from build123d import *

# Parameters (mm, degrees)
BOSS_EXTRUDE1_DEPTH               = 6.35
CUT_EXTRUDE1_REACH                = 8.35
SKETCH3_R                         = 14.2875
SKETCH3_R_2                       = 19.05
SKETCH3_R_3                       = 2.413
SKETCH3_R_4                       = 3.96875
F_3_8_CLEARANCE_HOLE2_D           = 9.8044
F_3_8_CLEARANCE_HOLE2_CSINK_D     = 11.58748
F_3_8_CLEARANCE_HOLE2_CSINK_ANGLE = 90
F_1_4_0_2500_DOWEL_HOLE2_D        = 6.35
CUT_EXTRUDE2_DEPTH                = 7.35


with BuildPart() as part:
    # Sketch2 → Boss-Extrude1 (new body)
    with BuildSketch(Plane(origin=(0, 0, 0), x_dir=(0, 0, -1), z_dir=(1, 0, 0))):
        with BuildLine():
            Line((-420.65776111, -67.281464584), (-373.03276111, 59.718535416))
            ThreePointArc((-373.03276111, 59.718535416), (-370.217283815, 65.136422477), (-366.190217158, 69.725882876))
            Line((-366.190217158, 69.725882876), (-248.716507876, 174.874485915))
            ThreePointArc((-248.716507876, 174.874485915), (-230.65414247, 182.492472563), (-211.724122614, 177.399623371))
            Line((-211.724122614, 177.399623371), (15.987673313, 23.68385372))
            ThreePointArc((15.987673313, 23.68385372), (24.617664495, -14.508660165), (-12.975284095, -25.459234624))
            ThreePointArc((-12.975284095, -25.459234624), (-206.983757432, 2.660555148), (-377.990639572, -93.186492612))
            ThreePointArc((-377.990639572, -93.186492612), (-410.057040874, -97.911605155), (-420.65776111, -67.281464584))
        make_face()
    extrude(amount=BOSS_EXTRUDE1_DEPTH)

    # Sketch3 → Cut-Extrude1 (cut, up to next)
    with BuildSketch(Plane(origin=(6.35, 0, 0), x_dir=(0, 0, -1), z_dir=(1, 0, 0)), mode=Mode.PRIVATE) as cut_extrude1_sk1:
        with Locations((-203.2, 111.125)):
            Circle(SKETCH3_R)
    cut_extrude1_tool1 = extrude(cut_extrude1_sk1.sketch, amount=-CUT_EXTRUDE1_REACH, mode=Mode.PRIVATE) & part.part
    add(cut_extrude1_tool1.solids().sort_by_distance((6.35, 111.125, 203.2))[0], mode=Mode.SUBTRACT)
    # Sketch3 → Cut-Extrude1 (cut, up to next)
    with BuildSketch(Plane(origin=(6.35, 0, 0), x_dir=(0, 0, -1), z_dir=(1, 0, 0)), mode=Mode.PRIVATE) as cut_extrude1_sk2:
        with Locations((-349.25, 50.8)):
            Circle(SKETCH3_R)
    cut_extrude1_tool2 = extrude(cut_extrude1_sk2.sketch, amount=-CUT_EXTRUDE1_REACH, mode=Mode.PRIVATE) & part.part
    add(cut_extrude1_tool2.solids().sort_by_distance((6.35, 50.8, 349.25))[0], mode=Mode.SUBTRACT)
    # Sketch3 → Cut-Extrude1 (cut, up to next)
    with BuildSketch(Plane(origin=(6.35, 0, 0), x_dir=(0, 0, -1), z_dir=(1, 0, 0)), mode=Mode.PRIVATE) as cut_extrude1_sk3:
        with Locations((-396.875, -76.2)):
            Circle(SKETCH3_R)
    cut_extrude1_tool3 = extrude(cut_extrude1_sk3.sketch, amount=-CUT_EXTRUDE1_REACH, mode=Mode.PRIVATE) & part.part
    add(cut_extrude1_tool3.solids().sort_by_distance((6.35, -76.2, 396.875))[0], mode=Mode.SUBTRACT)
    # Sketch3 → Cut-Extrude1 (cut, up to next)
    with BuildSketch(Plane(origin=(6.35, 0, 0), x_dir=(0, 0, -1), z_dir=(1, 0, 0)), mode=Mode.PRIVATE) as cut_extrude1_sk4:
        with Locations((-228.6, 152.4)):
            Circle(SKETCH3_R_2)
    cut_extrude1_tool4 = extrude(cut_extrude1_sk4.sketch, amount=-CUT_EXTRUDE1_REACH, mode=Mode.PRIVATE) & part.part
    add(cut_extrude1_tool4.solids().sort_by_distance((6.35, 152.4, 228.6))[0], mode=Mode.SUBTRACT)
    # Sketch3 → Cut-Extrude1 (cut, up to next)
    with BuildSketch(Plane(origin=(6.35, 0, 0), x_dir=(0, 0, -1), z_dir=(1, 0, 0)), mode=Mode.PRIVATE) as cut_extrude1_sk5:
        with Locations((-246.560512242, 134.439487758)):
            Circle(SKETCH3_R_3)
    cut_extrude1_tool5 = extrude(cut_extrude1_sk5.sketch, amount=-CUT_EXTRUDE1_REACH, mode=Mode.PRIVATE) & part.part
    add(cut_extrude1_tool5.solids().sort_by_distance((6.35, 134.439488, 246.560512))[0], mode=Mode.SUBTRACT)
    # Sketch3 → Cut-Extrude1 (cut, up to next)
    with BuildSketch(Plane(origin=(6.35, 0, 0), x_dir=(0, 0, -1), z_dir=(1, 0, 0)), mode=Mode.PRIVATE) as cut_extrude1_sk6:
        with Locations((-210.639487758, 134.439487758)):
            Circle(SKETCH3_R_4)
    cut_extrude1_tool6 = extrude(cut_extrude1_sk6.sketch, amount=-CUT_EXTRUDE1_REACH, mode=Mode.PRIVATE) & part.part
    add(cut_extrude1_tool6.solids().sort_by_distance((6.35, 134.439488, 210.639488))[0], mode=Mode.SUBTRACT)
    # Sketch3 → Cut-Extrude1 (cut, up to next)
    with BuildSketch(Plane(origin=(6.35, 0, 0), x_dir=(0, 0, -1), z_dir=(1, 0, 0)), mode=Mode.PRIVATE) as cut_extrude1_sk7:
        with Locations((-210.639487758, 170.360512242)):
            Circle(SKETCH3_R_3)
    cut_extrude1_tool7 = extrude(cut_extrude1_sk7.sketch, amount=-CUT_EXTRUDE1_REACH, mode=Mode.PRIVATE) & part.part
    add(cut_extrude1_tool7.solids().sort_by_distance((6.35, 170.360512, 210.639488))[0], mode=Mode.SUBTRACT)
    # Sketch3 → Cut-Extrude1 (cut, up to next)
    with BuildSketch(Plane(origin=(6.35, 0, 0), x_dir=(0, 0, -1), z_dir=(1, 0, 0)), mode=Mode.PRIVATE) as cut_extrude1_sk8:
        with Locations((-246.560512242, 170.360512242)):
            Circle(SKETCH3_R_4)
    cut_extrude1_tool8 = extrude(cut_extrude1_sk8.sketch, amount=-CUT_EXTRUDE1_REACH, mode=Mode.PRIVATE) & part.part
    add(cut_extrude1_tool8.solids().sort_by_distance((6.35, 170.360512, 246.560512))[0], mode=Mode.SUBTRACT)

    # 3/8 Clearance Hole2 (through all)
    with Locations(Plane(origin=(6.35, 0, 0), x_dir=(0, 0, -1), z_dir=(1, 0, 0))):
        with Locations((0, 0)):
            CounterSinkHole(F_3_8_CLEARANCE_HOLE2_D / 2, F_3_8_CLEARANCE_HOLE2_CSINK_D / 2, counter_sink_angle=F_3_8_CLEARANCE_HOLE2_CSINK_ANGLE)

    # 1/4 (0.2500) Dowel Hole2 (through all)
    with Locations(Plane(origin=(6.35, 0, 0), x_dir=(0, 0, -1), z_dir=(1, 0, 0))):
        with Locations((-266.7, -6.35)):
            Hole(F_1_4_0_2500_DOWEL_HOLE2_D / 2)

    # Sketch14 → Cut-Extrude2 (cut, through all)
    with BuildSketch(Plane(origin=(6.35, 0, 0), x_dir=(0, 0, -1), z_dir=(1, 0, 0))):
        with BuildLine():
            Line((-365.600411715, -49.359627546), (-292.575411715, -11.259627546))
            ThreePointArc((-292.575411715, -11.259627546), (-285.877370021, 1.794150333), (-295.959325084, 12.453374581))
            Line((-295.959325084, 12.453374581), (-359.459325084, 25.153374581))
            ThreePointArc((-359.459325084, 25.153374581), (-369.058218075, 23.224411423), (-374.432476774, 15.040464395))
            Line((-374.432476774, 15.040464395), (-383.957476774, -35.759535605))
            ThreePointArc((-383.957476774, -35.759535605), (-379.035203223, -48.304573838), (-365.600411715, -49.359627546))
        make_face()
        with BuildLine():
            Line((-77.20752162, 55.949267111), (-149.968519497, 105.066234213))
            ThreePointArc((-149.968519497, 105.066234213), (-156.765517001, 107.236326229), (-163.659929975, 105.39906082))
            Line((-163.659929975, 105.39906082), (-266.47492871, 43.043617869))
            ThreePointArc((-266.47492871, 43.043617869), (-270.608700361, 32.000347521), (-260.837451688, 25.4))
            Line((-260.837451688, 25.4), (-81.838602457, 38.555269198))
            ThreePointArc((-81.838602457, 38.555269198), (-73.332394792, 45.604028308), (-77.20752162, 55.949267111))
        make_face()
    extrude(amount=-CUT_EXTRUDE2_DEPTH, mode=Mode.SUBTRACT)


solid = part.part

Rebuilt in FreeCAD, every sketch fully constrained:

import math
import FreeCAD as App
import Part
import Sketcher

V = App.Vector
Q = App.Units.Quantity

doc = App.newDocument("Part")
body = doc.addObject("PartDesign::Body", "Body")

sketch1 = body.newObject("Sketcher::SketchObject", "Sketch")
sketch1.AttachmentSupport = (doc.getObject("YZ_Plane"), [""])
sketch1.MapMode = "FlatFace"
sketch1.addGeometry([
    Part.LineSegment(V(60, 373, 0), V(-67, 421, 0)),
    Part.ArcOfCircle(Part.Circle(V(-76, 397, 0), V(0, 0, 1), 25), math.radians(69), math.radians(228)),
    Part.ArcOfCircle(Part.Circle(V(-297, 151, 0), V(0, 0, 1), 305), math.radians(-27), math.radians(48)),
    Part.ArcOfCircle(Part.Circle(V(0, 0, 0), V(0, 0, 1), 29), math.radians(153), math.radians(326)),
    Part.LineSegment(V(24, -16, 0), V(177, 212, 0)),
    Part.ArcOfCircle(Part.Circle(V(152, 229, 0), V(0, 0, 1), 30), math.radians(-34), math.radians(42)),
    Part.LineSegment(V(175, 249, 0), V(70, 366, 0)),
    Part.ArcOfCircle(Part.Circle(V(51, 349, 0), V(0, 0, 1), 25), math.radians(42), math.radians(69)),
], False)
sketch1.addConstraint([
    Sketcher.Constraint("Tangent", 0, 2, 1, 1),
    Sketcher.Constraint("Tangent", 1, 2, 2, 2),
    Sketcher.Constraint("Tangent", 2, 1, 3, 1),
    Sketcher.Constraint("Tangent", 3, 2, 4, 1),
    Sketcher.Constraint("Tangent", 4, 2, 5, 1),
    Sketcher.Constraint("Tangent", 5, 2, 6, 1),
    Sketcher.Constraint("Tangent", 6, 2, 7, 1),
    Sketcher.Constraint("Tangent", 7, 2, 0, 1),
    Sketcher.Constraint("Coincident", 3, 3, -1, 1),
    Sketcher.Constraint("Equal", 1, 7),
    Sketcher.Constraint("Radius", 1, Q("1 in")),
    Sketcher.Constraint("Radius", 2, Q("12 in")),
    Sketcher.Constraint("DistanceX", 1, 3, -1, 1, Q("3 in")),
    Sketcher.Constraint("DistanceX", -1, 1, 5, 3, Q("6 in")),
    Sketcher.Constraint("DistanceY", -1, 1, 5, 3, Q("9 in")),
    Sketcher.Constraint("DistanceX", -1, 1, 7, 3, Q("2 in")),
    Sketcher.Constraint("Radius", 3, Q("1.125 in")),
    Sketcher.Constraint("Radius", 5, Q("1.1875 in")),
    Sketcher.Constraint("DistanceY", -1, 1, 7, 3, Q("13.75 in")),
    Sketcher.Constraint("DistanceY", -1, 1, 1, 3, Q("15.625 in")),
])
pad1 = body.newObject("PartDesign::Pad", "Pad")
pad1.Profile = sketch1
pad1.Length = Q("0.25 in")

sketch2 = body.newObject("Sketcher::SketchObject", "Sketch001")
sketch2.AttachmentSupport = (doc.getObject("YZ_Plane"), [""])
sketch2.MapMode = "FlatFace"
sketch2.AttachmentOffset = App.Placement(V(0, 0, 0.25 * 25.4), App.Rotation())
sketch2.addGeometry(Part.Circle(V(111, 203, 0), V(0, 0, 1), 14), False)
sketch2.addConstraint([
    Sketcher.Constraint("Diameter", 0, Q("1.125 in")),
    Sketcher.Constraint("DistanceY", -1, 1, 0, 3, Q("8 in")),
    Sketcher.Constraint("DistanceX", -1, 1, 0, 3, Q("4.375 in")),
])
pocket1 = body.newObject("PartDesign::Pocket", "Pocket")
pocket1.Profile = sketch2
pocket1.Type = "UpToFirst"

sketch3 = body.newObject("Sketcher::SketchObject", "Sketch002")
sketch3.AttachmentSupport = (doc.getObject("YZ_Plane"), [""])
sketch3.MapMode = "FlatFace"
sketch3.AttachmentOffset = App.Placement(V(0, 0, 0.25 * 25.4), App.Rotation())
sketch3.addGeometry(Part.Circle(V(51, 349, 0), V(0, 0, 1), 14), False)
sketch3.addConstraint([
    Sketcher.Constraint("Diameter", 0, Q("1.125 in")),
    Sketcher.Constraint("DistanceX", -1, 1, 0, 3, Q("2 in")),
    Sketcher.Constraint("DistanceY", -1, 1, 0, 3, Q("13.75 in")),
])
pocket2 = body.newObject("PartDesign::Pocket", "Pocket001")
pocket2.Profile = sketch3
pocket2.Type = "UpToFirst"

sketch4 = body.newObject("Sketcher::SketchObject", "Sketch003")
sketch4.AttachmentSupport = (doc.getObject("YZ_Plane"), [""])
sketch4.MapMode = "FlatFace"
sketch4.AttachmentOffset = App.Placement(V(0, 0, 0.25 * 25.4), App.Rotation())
sketch4.addGeometry(Part.Circle(V(-76, 397, 0), V(0, 0, 1), 14), False)
sketch4.addConstraint([
    Sketcher.Constraint("Diameter", 0, Q("1.125 in")),
    Sketcher.Constraint("DistanceX", 0, 3, -1, 1, Q("3 in")),
    Sketcher.Constraint("DistanceY", -1, 1, 0, 3, Q("15.625 in")),
])
pocket3 = body.newObject("PartDesign::Pocket", "Pocket002")
pocket3.Profile = sketch4
pocket3.Type = "UpToFirst"

sketch5 = body.newObject("Sketcher::SketchObject", "Sketch004")
sketch5.AttachmentSupport = (doc.getObject("YZ_Plane"), [""])
sketch5.MapMode = "FlatFace"
sketch5.AttachmentOffset = App.Placement(V(0, 0, 0.25 * 25.4), App.Rotation())
sketch5.addGeometry(Part.Circle(V(152, 229, 0), V(0, 0, 1), 19), False)
sketch5.addConstraint([
    Sketcher.Constraint("Diameter", 0, Q("1.5 in")),
    Sketcher.Constraint("DistanceX", -1, 1, 0, 3, Q("6 in")),
    Sketcher.Constraint("DistanceY", -1, 1, 0, 3, Q("9 in")),
])
pocket4 = body.newObject("PartDesign::Pocket", "Pocket003")
pocket4.Profile = sketch5
pocket4.Type = "UpToFirst"

sketch6 = body.newObject("Sketcher::SketchObject", "Sketch005")
sketch6.AttachmentSupport = (doc.getObject("YZ_Plane"), [""])
sketch6.MapMode = "FlatFace"
sketch6.AttachmentOffset = App.Placement(V(0, 0, 0.25 * 25.4), App.Rotation())
sketch6.addGeometry(Part.Circle(V(134.4, 246.6, 0), V(0, 0, 1), 2.4), False)
sketch6.addConstraint([
    Sketcher.Constraint("Diameter", 0, Q("0.19 in")),
    Sketcher.Constraint("DistanceX", -1, 1, 0, 3, 134.439488),
    Sketcher.Constraint("DistanceY", -1, 1, 0, 3, 246.560512),
])
pocket5 = body.newObject("PartDesign::Pocket", "Pocket004")
pocket5.Profile = sketch6
pocket5.Type = "UpToFirst"

sketch7 = body.newObject("Sketcher::SketchObject", "Sketch006")
sketch7.AttachmentSupport = (doc.getObject("YZ_Plane"), [""])
sketch7.MapMode = "FlatFace"
sketch7.AttachmentOffset = App.Placement(V(0, 0, 0.25 * 25.4), App.Rotation())
sketch7.addGeometry(Part.Circle(V(134.4, 210.6, 0), V(0, 0, 1), 4), False)
sketch7.addConstraint([
    Sketcher.Constraint("Diameter", 0, Q("0.3125 in")),
    Sketcher.Constraint("DistanceX", -1, 1, 0, 3, 134.439488),
    Sketcher.Constraint("DistanceY", -1, 1, 0, 3, 210.639488),
])
pocket6 = body.newObject("PartDesign::Pocket", "Pocket005")
pocket6.Profile = sketch7
pocket6.Type = "UpToFirst"

sketch8 = body.newObject("Sketcher::SketchObject", "Sketch007")
sketch8.AttachmentSupport = (doc.getObject("YZ_Plane"), [""])
sketch8.MapMode = "FlatFace"
sketch8.AttachmentOffset = App.Placement(V(0, 0, 0.25 * 25.4), App.Rotation())
sketch8.addGeometry(Part.Circle(V(170.4, 210.6, 0), V(0, 0, 1), 2.4), False)
sketch8.addConstraint([
    Sketcher.Constraint("Diameter", 0, Q("0.19 in")),
    Sketcher.Constraint("DistanceX", -1, 1, 0, 3, 170.360512),
    Sketcher.Constraint("DistanceY", -1, 1, 0, 3, 210.639488),
])
pocket7 = body.newObject("PartDesign::Pocket", "Pocket006")
pocket7.Profile = sketch8
pocket7.Type = "UpToFirst"

sketch9 = body.newObject("Sketcher::SketchObject", "Sketch008")
sketch9.AttachmentSupport = (doc.getObject("YZ_Plane"), [""])
sketch9.MapMode = "FlatFace"
sketch9.AttachmentOffset = App.Placement(V(0, 0, 0.25 * 25.4), App.Rotation())
sketch9.addGeometry(Part.Circle(V(170.4, 246.6, 0), V(0, 0, 1), 4), False)
sketch9.addConstraint([
    Sketcher.Constraint("Diameter", 0, Q("0.3125 in")),
    Sketcher.Constraint("DistanceX", -1, 1, 0, 3, 170.360512),
    Sketcher.Constraint("DistanceY", -1, 1, 0, 3, 246.560512),
])
pocket8 = body.newObject("PartDesign::Pocket", "Pocket007")
pocket8.Profile = sketch9
pocket8.Type = "UpToFirst"

sketch10 = body.newObject("Sketcher::SketchObject", "Sketch009")
sketch10.AttachmentSupport = (doc.getObject("YZ_Plane"), [""])
sketch10.MapMode = "FlatFace"
sketch10.AttachmentOffset = App.Placement(V(0, 0, 0.25 * 25.4), App.Rotation())
sketch10.addGeometry(Part.Circle(V(0, 0, 0), V(0, 0, 1), 4.9), False)
sketch10.addConstraint([
    Sketcher.Constraint("Coincident", 0, 3, -1, 1),
    Sketcher.Constraint("Diameter", 0, Q("0.386 in")),
])
doc.recompute()
hole = body.newObject("PartDesign::Hole", "Hole")
hole.Profile = sketch10
hole.ThreadType = "None"
hole.Diameter = Q("0.386 in")
hole.DepthType = "ThroughAll"
hole.HoleCutType = "Countersink"
hole.HoleCutDiameter = Q("0.4562 in")
hole.HoleCutCountersinkAngle = 90

sketch11 = body.newObject("Sketcher::SketchObject", "Sketch010")
sketch11.AttachmentSupport = (doc.getObject("YZ_Plane"), [""])
sketch11.MapMode = "FlatFace"
sketch11.AttachmentOffset = App.Placement(V(0, 0, 0.25 * 25.4), App.Rotation())
sketch11.addGeometry(Part.Circle(V(-6.3, 266.7, 0), V(0, 0, 1), 3.2), False)
sketch11.addConstraint([
    Sketcher.Constraint("Diameter", 0, Q("0.25 in")),
    Sketcher.Constraint("DistanceY", -1, 1, 0, 3, Q("10.5 in")),
    Sketcher.Constraint("DistanceX", 0, 3, -1, 1, Q("0.25 in")),
])
doc.recompute()
hole2 = body.newObject("PartDesign::Hole", "Hole001")
hole2.Profile = sketch11
hole2.ThreadType = "None"
hole2.Diameter = Q("0.25 in")
hole2.DepthType = "ThroughAll"

sketch12 = body.newObject("Sketcher::SketchObject", "Sketch011")
sketch12.AttachmentSupport = (doc.getObject("YZ_Plane"), [""])
sketch12.MapMode = "FlatFace"
sketch12.AttachmentOffset = App.Placement(V(0, 0, 0.25 * 25.4), App.Rotation())
sketch12.addGeometry([
    Part.LineSegment(V(-49.359628, 365.600412, 0), V(-11.259628, 292.575412, 0)),
    Part.ArcOfCircle(Part.Circle(V(0, 298.45, 0), V(0, 0, 1), 12.7), math.radians(-152.447188), math.radians(-11.309932)),
    Part.LineSegment(V(12.453375, 295.959325, 0), V(25.153375, 359.459325, 0)),
    Part.ArcOfCircle(Part.Circle(V(12.7, 361.95, 0), V(0, 0, 1), 12.7), math.radians(-11.309932), math.radians(79.380345)),
    Part.LineSegment(V(15.040464, 374.432477, 0), V(-35.759536, 383.957477, 0)),
    Part.ArcOfCircle(Part.Circle(V(-38.1, 371.475, 0), V(0, 0, 1), 12.7), math.radians(79.380345), math.radians(207.552812)),
    Part.LineSegment(V(55.949267, 77.207522, 0), V(105.066234, 149.968519, 0)),
    Part.ArcOfCircle(Part.Circle(V(94.540077, 157.074152, 0), V(0, 0, 1), 12.7), math.radians(-34.021132), math.radians(31.236056)),
    Part.LineSegment(V(105.399061, 163.65993, 0), V(43.043618, 266.474929, 0)),
    Part.ArcOfCircle(Part.Circle(V(34.89938, 261.535595, 0), V(0, 0, 1), 9.525), math.radians(31.236056), math.radians(184.203316)),
    Part.LineSegment(V(25.4, 260.837452, 0), V(38.555269, 81.838602, 0)),
    Part.ArcOfCircle(Part.Circle(V(48.054649, 82.536746, 0), V(0, 0, 1), 9.525), math.radians(-175.796684), math.radians(-34.021132)),
], False)
sketch12.addConstraint([
    Sketcher.Constraint("Coincident", 0, 2, 1, 1),
    Sketcher.Constraint("Coincident", 1, 2, 2, 1),
    Sketcher.Constraint("Coincident", 2, 2, 3, 1),
    Sketcher.Constraint("Coincident", 3, 2, 4, 1),
    Sketcher.Constraint("Coincident", 4, 2, 5, 1),
    Sketcher.Constraint("Coincident", 5, 2, 0, 1),
    Sketcher.Constraint("Coincident", 6, 2, 7, 1),
    Sketcher.Constraint("Coincident", 7, 2, 8, 1),
    Sketcher.Constraint("Coincident", 8, 2, 9, 1),
    Sketcher.Constraint("Coincident", 9, 2, 10, 1),
    Sketcher.Constraint("Coincident", 10, 2, 11, 1),
    Sketcher.Constraint("Coincident", 11, 2, 6, 1),
    Sketcher.Constraint("PointOnObject", 1, 3, -2),
    Sketcher.Constraint("Radius", 1, Q("0.5 in")),
    Sketcher.Constraint("Radius", 3, Q("0.5 in")),
    Sketcher.Constraint("Radius", 5, Q("0.5 in")),
    Sketcher.Constraint("Radius", 7, Q("0.5 in")),
    Sketcher.Constraint("DistanceX", -1, 1, 9, 2, Q("1 in")),
    Sketcher.Constraint("Radius", 9, Q("0.375 in")),
    Sketcher.Constraint("Radius", 11, Q("0.375 in")),
    Sketcher.Constraint("DistanceX", 5, 3, 3, 3, Q("2 in")),
    Sketcher.Constraint("DistanceX", 4, 2, 3, 2, Q("2 in")),
    Sketcher.Constraint("DistanceX", -1, 1, 3, 3, Q("0.5 in")),
    Sketcher.Constraint("DistanceY", 1, 3, 3, 3, Q("2.5 in")),
    Sketcher.Constraint("DistanceX", 1, 2, 2, 2, Q("0.5 in")),
    Sketcher.Constraint("DistanceY", -1, 1, 1, 3, Q("11.75 in")),
    Sketcher.Constraint("DistanceY", -1, 1, 5, 3, Q("14.625 in")),
    Sketcher.Constraint("DistanceX", -1, 1, 9, 3, 34.89938),
    Sketcher.Constraint("DistanceX", -1, 1, 11, 3, 48.054649),
    Sketcher.Constraint("DistanceY", -1, 1, 0, 2, 292.575412),
    Sketcher.Constraint("DistanceY", -1, 1, 5, 2, 365.600412),
    Sketcher.Constraint("DistanceY", -1, 1, 6, 2, 149.968519),
    Sketcher.Constraint("DistanceX", -1, 1, 7, 2, 105.399061),
    Sketcher.Constraint("DistanceY", -1, 1, 7, 2, 163.65993),
    Sketcher.Constraint("DistanceY", -1, 1, 8, 2, 266.474929),
    Sketcher.Constraint("DistanceY", -1, 1, 9, 2, 260.837452),
    Sketcher.Constraint("DistanceX", -1, 1, 10, 2, 38.555269),
    Sketcher.Constraint("DistanceY", -1, 1, 11, 2, 77.207522),
    Sketcher.Constraint("DistanceY", 11, 3, 9, 3, 178.998849),
    Sketcher.Constraint("DistanceY", 7, 3, 0, 2, 135.50126),
    Sketcher.Constraint("DistanceY", 9, 3, 1, 2, 34.42373),
    Sketcher.Constraint("DistanceX", 3, 2, 2, 2, 10.11291),
])
pocket9 = body.newObject("PartDesign::Pocket", "Pocket008")
pocket9.Profile = sketch12
pocket9.Type = "ThroughAll"

doc.recompute()
